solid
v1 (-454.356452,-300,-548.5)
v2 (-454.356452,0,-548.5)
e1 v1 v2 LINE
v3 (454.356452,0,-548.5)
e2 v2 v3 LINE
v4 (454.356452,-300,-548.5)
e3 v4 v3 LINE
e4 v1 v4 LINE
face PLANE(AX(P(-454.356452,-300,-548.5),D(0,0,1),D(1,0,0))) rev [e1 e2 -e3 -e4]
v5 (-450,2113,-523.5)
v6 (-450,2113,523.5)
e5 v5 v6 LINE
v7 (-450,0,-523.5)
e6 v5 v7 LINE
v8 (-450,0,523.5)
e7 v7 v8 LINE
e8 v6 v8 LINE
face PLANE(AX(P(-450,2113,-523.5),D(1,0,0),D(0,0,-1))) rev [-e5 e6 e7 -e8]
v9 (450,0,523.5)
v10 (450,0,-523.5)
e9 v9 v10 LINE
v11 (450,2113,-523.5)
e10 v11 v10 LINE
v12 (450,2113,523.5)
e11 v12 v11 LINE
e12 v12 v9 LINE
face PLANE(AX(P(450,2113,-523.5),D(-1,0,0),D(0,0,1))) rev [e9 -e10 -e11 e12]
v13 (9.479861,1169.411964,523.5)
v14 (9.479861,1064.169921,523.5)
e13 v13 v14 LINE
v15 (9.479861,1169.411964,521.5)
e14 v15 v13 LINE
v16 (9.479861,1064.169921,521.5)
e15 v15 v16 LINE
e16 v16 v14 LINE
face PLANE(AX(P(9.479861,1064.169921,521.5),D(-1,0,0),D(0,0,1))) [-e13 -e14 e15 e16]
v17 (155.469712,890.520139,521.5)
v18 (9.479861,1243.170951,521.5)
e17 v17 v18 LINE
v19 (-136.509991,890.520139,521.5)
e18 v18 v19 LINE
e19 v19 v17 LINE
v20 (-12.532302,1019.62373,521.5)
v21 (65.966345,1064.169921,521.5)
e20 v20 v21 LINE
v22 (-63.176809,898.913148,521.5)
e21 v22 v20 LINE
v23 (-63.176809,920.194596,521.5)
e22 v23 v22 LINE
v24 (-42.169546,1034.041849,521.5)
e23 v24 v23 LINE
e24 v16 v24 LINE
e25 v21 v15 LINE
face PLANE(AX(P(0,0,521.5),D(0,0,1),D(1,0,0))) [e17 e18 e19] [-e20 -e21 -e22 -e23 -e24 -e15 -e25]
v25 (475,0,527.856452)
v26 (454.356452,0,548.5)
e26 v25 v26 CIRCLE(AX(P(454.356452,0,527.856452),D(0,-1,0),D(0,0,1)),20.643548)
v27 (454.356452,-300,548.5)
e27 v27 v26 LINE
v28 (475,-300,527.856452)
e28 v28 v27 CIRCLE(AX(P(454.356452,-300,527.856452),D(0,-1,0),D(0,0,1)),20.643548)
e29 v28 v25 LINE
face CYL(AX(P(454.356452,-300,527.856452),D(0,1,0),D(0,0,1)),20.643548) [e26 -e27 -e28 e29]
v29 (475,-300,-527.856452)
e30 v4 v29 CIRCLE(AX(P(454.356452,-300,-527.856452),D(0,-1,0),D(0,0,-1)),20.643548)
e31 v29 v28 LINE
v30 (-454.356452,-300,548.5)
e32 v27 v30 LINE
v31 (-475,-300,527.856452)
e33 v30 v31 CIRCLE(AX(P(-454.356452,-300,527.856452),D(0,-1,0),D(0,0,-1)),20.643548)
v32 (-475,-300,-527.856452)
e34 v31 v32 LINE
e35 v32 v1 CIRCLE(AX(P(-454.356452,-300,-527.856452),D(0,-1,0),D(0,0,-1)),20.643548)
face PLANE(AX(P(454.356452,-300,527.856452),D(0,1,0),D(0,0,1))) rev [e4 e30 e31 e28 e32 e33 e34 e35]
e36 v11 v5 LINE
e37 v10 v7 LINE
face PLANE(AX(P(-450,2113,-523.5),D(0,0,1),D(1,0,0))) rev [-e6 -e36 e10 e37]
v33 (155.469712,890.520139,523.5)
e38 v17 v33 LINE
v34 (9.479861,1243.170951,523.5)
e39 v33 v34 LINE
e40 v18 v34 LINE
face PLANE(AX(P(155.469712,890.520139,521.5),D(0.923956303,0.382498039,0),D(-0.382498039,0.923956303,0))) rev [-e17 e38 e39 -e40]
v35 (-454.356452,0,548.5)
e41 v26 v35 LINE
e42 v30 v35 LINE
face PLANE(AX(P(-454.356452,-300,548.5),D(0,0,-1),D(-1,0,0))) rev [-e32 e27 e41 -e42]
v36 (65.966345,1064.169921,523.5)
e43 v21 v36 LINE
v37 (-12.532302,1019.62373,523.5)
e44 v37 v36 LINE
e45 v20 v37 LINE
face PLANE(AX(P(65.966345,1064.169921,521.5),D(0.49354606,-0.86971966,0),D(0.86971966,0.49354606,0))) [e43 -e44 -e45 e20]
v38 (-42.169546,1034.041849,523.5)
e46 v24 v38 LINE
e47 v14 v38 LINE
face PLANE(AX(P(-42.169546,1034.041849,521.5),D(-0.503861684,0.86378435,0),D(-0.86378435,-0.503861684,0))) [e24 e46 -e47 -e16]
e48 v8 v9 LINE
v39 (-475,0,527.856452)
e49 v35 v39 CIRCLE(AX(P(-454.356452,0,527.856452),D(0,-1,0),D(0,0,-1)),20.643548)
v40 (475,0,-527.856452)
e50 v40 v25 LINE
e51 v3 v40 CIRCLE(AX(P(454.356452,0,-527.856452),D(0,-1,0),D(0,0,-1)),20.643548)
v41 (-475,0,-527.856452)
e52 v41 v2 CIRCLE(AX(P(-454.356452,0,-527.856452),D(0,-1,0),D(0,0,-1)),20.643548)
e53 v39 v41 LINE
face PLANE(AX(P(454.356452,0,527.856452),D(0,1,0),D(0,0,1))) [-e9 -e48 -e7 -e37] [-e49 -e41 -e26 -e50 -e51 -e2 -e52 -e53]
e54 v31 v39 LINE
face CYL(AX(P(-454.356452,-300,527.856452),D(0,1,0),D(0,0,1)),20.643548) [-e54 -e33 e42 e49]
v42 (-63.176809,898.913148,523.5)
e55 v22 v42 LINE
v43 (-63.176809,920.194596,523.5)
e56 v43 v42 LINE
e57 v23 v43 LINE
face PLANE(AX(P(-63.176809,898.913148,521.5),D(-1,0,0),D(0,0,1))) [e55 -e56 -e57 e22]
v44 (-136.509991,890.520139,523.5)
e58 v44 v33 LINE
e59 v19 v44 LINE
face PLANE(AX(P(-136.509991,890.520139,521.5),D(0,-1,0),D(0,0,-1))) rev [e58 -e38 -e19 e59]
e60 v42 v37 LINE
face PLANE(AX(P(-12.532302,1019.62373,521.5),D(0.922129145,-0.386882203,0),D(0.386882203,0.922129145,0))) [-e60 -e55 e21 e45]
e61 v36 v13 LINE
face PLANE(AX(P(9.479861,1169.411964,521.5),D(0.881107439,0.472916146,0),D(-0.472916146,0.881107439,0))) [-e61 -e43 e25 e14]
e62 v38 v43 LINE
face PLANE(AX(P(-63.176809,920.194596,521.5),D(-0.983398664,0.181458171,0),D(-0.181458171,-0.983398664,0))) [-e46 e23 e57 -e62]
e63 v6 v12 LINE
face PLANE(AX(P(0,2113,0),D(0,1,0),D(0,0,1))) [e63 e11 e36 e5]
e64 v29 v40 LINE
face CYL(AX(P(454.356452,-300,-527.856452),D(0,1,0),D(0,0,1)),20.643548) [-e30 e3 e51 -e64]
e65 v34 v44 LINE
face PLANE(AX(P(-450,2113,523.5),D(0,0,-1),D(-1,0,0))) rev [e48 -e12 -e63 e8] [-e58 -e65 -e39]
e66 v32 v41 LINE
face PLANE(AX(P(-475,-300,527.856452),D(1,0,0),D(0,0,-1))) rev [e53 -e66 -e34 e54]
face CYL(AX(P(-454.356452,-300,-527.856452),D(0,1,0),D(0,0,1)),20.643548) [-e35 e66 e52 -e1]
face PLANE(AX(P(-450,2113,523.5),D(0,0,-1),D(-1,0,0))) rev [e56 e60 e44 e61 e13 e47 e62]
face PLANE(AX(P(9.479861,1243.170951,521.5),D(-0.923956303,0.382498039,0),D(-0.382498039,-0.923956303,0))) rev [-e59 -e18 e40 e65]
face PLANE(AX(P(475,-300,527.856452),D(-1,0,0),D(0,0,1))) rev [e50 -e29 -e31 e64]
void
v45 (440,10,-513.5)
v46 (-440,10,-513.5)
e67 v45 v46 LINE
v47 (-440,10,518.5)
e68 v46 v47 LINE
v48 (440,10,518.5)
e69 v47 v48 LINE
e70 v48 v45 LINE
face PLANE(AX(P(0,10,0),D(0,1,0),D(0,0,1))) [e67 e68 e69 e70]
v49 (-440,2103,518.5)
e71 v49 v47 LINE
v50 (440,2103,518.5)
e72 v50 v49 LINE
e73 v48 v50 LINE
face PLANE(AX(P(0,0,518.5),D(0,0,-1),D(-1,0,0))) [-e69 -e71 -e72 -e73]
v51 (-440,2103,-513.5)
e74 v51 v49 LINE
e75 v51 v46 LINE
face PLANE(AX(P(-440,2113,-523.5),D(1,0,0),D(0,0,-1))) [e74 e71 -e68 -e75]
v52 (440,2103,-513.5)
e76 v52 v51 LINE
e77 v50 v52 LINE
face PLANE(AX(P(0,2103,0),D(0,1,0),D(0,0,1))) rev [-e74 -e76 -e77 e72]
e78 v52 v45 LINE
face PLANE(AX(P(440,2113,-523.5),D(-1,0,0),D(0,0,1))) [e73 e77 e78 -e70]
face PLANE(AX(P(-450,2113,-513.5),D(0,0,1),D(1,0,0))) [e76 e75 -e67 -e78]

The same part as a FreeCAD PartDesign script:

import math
import FreeCAD as App
import Part
import Sketcher
from FreeCAD import Vector
Q = App.Units.Quantity


def faces_at(feature, points):
    """Names of the faces that lie closest to the given points."""
    faces = feature.Shape.Faces
    near = lambda p: min(range(len(faces)), key=lambda i: faces[i].distToShape(Part.Vertex(*p))[0])
    return sorted({f"Face{near(p) + 1}" for p in points})

doc = App.newDocument("Part")
body = doc.addObject("PartDesign::Body", "Body")

# Sketch on XZ plane
sketch1 = body.newObject("Sketcher::SketchObject", "Sketch")
sketch1.AttachmentSupport = (doc.getObject("XZ_Plane"), [""])
sketch1.MapMode = "FlatFace"
sketch1.addGeometry(Part.LineSegment(Vector(-450, -524, 0), Vector(-450, 524, 0)), False)
sketch1.addGeometry(Part.LineSegment(Vector(-450, 524, 0), Vector(450, 524, 0)), False)
sketch1.addGeometry(Part.LineSegment(Vector(450, 524, 0), Vector(450, -524, 0)), False)
sketch1.addGeometry(Part.LineSegment(Vector(450, -524, 0), Vector(-450, -524, 0)), False)
sketch1.addConstraint(Sketcher.Constraint("Coincident", 0, 2, 1, 1))
sketch1.addConstraint(Sketcher.Constraint("Coincident", 1, 2, 2, 1))
sketch1.addConstraint(Sketcher.Constraint("Coincident", 2, 2, 3, 1))
sketch1.addConstraint(Sketcher.Constraint("Coincident", 3, 2, 0, 1))
sketch1.addConstraint(Sketcher.Constraint("Vertical", 0))
sketch1.addConstraint(Sketcher.Constraint("Horizontal", 1))
sketch1.addConstraint(Sketcher.Constraint("Vertical", 2))
sketch1.addConstraint(Sketcher.Constraint("Horizontal", 3))
sketch1.addConstraint(Sketcher.Constraint("Symmetric", 0, 2, 2, 2, -1, 1))
sketch1.addConstraint(Sketcher.Constraint("DistanceX", 1, 1, 1, 2, Q("900 mm")))
sketch1.addConstraint(Sketcher.Constraint("DistanceY", 0, 1, 0, 2, Q("1047 mm")))
pad1 = body.newObject("PartDesign::Pad", "Pad")
pad1.Profile = sketch1
pad1.Length = 2113
pad1.Reversed = True
doc.recompute()

thickness = body.newObject("PartDesign::Thickness", "Thickness")
thickness.Base = (pad1, faces_at(pad1, [(0, 1056.5, 523.5)]))
thickness.Value = 10
thickness.Reversed = True
thickness.Join = "Intersection"

# Sketch on XY plane
sketch2 = body.newObject("Sketcher::SketchObject", "Sketch001")
sketch2.AttachmentSupport = (doc.getObject("XY_Plane"), [""])
sketch2.MapMode = "FlatFace"
sketch2.AttachmentOffset = App.Placement(Vector(0, 0, 523.5), App.Rotation())
sketch2.addGeometry(Part.LineSegment(Vector(-440, 2103, 0), Vector(-440, 10, 0)), False)
sketch2.addGeometry(Part.LineSegment(Vector(-440, 10, 0), Vector(440, 10, 0)), False)
sketch2.addGeometry(Part.LineSegment(Vector(440, 10, 0), Vector(440, 2103, 0)), False)
sketch2.addGeometry(Part.LineSegment(Vector(440, 2103, 0), Vector(-440, 2103, 0)), False)
sketch2.addConstraint(Sketcher.Constraint("Coincident", 0, 2, 1, 1))
sketch2.addConstraint(Sketcher.Constraint("Coincident", 1, 2, 2, 1))
sketch2.addConstraint(Sketcher.Constraint("Coincident", 2, 2, 3, 1))
sketch2.addConstraint(Sketcher.Constraint("Coincident", 3, 2, 0, 1))
sketch2.addConstraint(Sketcher.Constraint("Vertical", 0))
sketch2.addConstraint(Sketcher.Constraint("Horizontal", 1))
sketch2.addConstraint(Sketcher.Constraint("Vertical", 2))
sketch2.addConstraint(Sketcher.Constraint("Horizontal", 3))
sketch2.addConstraint(Sketcher.Constraint("DistanceX", 1, 1, 1, 2, Q("880 mm")))
sketch2.addConstraint(Sketcher.Constraint("DistanceY", 0, 2, 0, 1, Q("2093 mm")))
sketch2.addConstraint(Sketcher.Constraint("DistanceX", 0, 2, -1, 1, Q("440 mm")))
sketch2.addConstraint(Sketcher.Constraint("DistanceY", -1, 1, 0, 2, Q("10 mm")))
pad2 = body.newObject("PartDesign::Pad", "Pad001")
pad2.Profile = sketch2
pad2.Length = 5
pad2.Reversed = True

# Sketch on XY plane
sketch3 = body.newObject("Sketcher::SketchObject", "Sketch002")
sketch3.AttachmentSupport = (doc.getObject("XY_Plane"), [""])
sketch3.MapMode = "FlatFace"
sketch3.AttachmentOffset = App.Placement(Vector(0, 0, 523.5), App.Rotation())
sketch3.addGeometry(Part.LineSegment(Vector(-137, 891, 0), Vector(155, 891, 0)), False)
sketch3.addGeometry(Part.LineSegment(Vector(155, 891, 0), Vector(9, 1243, 0)), False)
sketch3.addGeometry(Part.LineSegment(Vector(9, 1243, 0), Vector(-137, 891, 0)), False)
sketch3.addGeometry(Part.LineSegment(Vector(-63, 899, 0), Vector(-63, 920, 0)), False)
sketch3.addGeometry(Part.LineSegment(Vector(-63, 920, 0), Vector(-42, 1034, 0)), False)
sketch3.addGeometry(Part.LineSegment(Vector(-42, 1034, 0), Vector(9, 1064, 0)), False)
sketch3.addGeometry(Part.LineSegment(Vector(9, 1064, 0), Vector(9, 1169, 0)), False)
sketch3.addGeometry(Part.LineSegment(Vector(9, 1169, 0), Vector(66, 1064, 0)), False)
sketch3.addGeometry(Part.LineSegment(Vector(66, 1064, 0), Vector(-13, 1020, 0)), False)
sketch3.addGeometry(Part.LineSegment(Vector(-13, 1020, 0), Vector(-63, 899, 0)), False)
sketch3.addConstraint(Sketcher.Constraint("Coincident", 0, 2, 1, 1))
sketch3.addConstraint(Sketcher.Constraint("Coincident", 1, 2, 2, 1))
sketch3.addConstraint(Sketcher.Constraint("Coincident", 2, 2, 0, 1))
sketch3.addConstraint(Sketcher.Constraint("Coincident", 3, 2, 4, 1))
sketch3.addConstraint(Sketcher.Constraint("Coincident", 4, 2, 5, 1))
sketch3.addConstraint(Sketcher.Constraint("Coincident", 5, 2, 6, 1))
sketch3.addConstraint(Sketcher.Constraint("Coincident", 6, 2, 7, 1))
sketch3.addConstraint(Sketcher.Constraint("Coincident", 7, 2, 8, 1))
sketch3.addConstraint(Sketcher.Constraint("Coincident", 8, 2, 9, 1))
sketch3.addConstraint(Sketcher.Constraint("Coincident", 9, 2, 3, 1))
sketch3.addConstraint(Sketcher.Constraint("Horizontal", 0))
sketch3.addConstraint(Sketcher.Constraint("Vertical", 3))
sketch3.addConstraint(Sketcher.Constraint("Vertical", 6))
sketch3.addConstraint(Sketcher.Constraint("Horizontal", 5, 2, 7, 2))
sketch3.addConstraint(Sketcher.Constraint("Vertical", 1, 2, 5, 2))
sketch3.addConstraint(Sketcher.Constraint("Equal", 1, 2))
sketch3.addConstraint(Sketcher.Constraint("DistanceX", 8, 2, -1, 1, Q("12.532302 mm")))
sketch3.addConstraint(Sketcher.Constraint("DistanceY", 4, 2, 1, 2, Q("209.129102 mm")))
sketch3.addConstraint(Sketcher.Constraint("DistanceY", 9, 2, 4, 2, Q("135.128701 mm")))
sketch3.addConstraint(Sketcher.Constraint("Distance", 1, Q("381.674772 mm")))
sketch3.addConstraint(Sketcher.Constraint("Distance", 5, Q("59.79433 mm")))
sketch3.addConstraint(Sketcher.Constraint("DistanceX", 0, 1, 0, 2, Q("291.979704 mm")))
sketch3.addConstraint(Sketcher.Constraint("DistanceY", 3, 1, 3, 2, Q("21.281448 mm")))
sketch3.addConstraint(Sketcher.Constraint("DistanceY", 6, 1, 6, 2, Q("105.242043 mm")))
sketch3.addConstraint(Sketcher.Constraint("DistanceY", -1, 1, 0, 2, Q("890.520139 mm")))
sketch3.addConstraint(Sketcher.Constraint("DistanceX", -1, 1, 1, 2, Q("9.479861 mm")))
sketch3.addConstraint(Sketcher.Constraint("DistanceX", 3, 2, -1, 1, Q("63.176809 mm")))
sketch3.addConstraint(Sketcher.Constraint("DistanceY", -1, 1, 5, 2, Q("1064.169921 mm")))
sketch3.addConstraint(Sketcher.Constraint("DistanceY", -1, 1, 8, 2, Q("1019.62373 mm")))
sketch3.addConstraint(Sketcher.Constraint("DistanceX", 4, 2, 7, 2, Q("108.13589 mm")))
pocket1 = body.newObject("PartDesign::Pocket", "Pocket")
pocket1.Profile = sketch3
pocket1.Length = 2

# Sketch on XZ plane
sketch4 = body.newObject("Sketcher::SketchObject", "Sketch003")
sketch4.AttachmentSupport = (doc.getObject("XZ_Plane"), [""])
sketch4.MapMode = "FlatFace"
sketch4.addGeometry(Part.LineSegment(Vector(454, 548, 0), Vector(-454, 548, 0)), False)
sketch4.addGeometry(Part.ArcOfCircle(Part.Circle(Vector(-454, 528, 0), Vector(0, 0, 1), 21), math.radians(90), math.radians(180)), False)
sketch4.addGeometry(Part.LineSegment(Vector(-475, 528, 0), Vector(-475, -528, 0)), False)
sketch4.addGeometry(Part.ArcOfCircle(Part.Circle(Vector(-454, -528, 0), Vector(0, 0, 1), 21), math.radians(180), math.radians(270)), False)
sketch4.addGeometry(Part.LineSegment(Vector(-454, -548, 0), Vector(454, -548, 0)), False)
sketch4.addGeometry(Part.ArcOfCircle(Part.Circle(Vector(454, -528, 0), Vector(0, 0, 1), 21), math.radians(-90), math.radians(0)), False)
sketch4.addGeometry(Part.LineSegment(Vector(475, -528, 0), Vector(475, 528, 0)), False)
sketch4.addGeometry(Part.ArcOfCircle(Part.Circle(Vector(454, 528, 0), Vector(0, 0, 1), 21), math.radians(0), math.radians(90)), False)
sketch4.addConstraint(Sketcher.Constraint("Tangent", 0, 2, 1, 1))
sketch4.addConstraint(Sketcher.Constraint("Tangent", 1, 2, 2, 1))
sketch4.addConstraint(Sketcher.Constraint("Tangent", 2, 2, 3, 1))
sketch4.addConstraint(Sketcher.Constraint("Tangent", 3, 2, 4, 1))
sketch4.addConstraint(Sketcher.Constraint("Tangent", 4, 2, 5, 1))
sketch4.addConstraint(Sketcher.Constraint("Tangent", 5, 2, 6, 1))
sketch4.addConstraint(Sketcher.Constraint("Tangent", 6, 2, 7, 1))
sketch4.addConstraint(Sketcher.Constraint("Tangent", 7, 2, 0, 1))
sketch4.addConstraint(Sketcher.Constraint("Horizontal", 0))
sketch4.addConstraint(Sketcher.Constraint("Vertical", 2))
sketch4.addConstraint(Sketcher.Constraint("Horizontal", 4))
sketch4.addConstraint(Sketcher.Constraint("Vertical", 6))
sketch4.addConstraint(Sketcher.Constraint("Equal", 1, 3))
sketch4.addConstraint(Sketcher.Constraint("Equal", 3, 5))
sketch4.addConstraint(Sketcher.Constraint("Equal", 5, 7))
sketch4.addConstraint(Sketcher.Constraint("Symmetric", 1, 3, 5, 3, -1, 1))
sketch4.addConstraint(Sketcher.Constraint("DistanceX", 1, 2, -1, 1, Q("475 mm")))
sketch4.addConstraint(Sketcher.Constraint("DistanceY", -1, 1, 0, 2, Q("548.5 mm")))
sketch4.addConstraint(Sketcher.Constraint("Radius", 1, Q("20.643548 mm")))
pad3 = body.newObject("PartDesign::Pad", "Pad002")
pad3.Profile = sketch4
pad3.Length = 300

doc.recompute()
